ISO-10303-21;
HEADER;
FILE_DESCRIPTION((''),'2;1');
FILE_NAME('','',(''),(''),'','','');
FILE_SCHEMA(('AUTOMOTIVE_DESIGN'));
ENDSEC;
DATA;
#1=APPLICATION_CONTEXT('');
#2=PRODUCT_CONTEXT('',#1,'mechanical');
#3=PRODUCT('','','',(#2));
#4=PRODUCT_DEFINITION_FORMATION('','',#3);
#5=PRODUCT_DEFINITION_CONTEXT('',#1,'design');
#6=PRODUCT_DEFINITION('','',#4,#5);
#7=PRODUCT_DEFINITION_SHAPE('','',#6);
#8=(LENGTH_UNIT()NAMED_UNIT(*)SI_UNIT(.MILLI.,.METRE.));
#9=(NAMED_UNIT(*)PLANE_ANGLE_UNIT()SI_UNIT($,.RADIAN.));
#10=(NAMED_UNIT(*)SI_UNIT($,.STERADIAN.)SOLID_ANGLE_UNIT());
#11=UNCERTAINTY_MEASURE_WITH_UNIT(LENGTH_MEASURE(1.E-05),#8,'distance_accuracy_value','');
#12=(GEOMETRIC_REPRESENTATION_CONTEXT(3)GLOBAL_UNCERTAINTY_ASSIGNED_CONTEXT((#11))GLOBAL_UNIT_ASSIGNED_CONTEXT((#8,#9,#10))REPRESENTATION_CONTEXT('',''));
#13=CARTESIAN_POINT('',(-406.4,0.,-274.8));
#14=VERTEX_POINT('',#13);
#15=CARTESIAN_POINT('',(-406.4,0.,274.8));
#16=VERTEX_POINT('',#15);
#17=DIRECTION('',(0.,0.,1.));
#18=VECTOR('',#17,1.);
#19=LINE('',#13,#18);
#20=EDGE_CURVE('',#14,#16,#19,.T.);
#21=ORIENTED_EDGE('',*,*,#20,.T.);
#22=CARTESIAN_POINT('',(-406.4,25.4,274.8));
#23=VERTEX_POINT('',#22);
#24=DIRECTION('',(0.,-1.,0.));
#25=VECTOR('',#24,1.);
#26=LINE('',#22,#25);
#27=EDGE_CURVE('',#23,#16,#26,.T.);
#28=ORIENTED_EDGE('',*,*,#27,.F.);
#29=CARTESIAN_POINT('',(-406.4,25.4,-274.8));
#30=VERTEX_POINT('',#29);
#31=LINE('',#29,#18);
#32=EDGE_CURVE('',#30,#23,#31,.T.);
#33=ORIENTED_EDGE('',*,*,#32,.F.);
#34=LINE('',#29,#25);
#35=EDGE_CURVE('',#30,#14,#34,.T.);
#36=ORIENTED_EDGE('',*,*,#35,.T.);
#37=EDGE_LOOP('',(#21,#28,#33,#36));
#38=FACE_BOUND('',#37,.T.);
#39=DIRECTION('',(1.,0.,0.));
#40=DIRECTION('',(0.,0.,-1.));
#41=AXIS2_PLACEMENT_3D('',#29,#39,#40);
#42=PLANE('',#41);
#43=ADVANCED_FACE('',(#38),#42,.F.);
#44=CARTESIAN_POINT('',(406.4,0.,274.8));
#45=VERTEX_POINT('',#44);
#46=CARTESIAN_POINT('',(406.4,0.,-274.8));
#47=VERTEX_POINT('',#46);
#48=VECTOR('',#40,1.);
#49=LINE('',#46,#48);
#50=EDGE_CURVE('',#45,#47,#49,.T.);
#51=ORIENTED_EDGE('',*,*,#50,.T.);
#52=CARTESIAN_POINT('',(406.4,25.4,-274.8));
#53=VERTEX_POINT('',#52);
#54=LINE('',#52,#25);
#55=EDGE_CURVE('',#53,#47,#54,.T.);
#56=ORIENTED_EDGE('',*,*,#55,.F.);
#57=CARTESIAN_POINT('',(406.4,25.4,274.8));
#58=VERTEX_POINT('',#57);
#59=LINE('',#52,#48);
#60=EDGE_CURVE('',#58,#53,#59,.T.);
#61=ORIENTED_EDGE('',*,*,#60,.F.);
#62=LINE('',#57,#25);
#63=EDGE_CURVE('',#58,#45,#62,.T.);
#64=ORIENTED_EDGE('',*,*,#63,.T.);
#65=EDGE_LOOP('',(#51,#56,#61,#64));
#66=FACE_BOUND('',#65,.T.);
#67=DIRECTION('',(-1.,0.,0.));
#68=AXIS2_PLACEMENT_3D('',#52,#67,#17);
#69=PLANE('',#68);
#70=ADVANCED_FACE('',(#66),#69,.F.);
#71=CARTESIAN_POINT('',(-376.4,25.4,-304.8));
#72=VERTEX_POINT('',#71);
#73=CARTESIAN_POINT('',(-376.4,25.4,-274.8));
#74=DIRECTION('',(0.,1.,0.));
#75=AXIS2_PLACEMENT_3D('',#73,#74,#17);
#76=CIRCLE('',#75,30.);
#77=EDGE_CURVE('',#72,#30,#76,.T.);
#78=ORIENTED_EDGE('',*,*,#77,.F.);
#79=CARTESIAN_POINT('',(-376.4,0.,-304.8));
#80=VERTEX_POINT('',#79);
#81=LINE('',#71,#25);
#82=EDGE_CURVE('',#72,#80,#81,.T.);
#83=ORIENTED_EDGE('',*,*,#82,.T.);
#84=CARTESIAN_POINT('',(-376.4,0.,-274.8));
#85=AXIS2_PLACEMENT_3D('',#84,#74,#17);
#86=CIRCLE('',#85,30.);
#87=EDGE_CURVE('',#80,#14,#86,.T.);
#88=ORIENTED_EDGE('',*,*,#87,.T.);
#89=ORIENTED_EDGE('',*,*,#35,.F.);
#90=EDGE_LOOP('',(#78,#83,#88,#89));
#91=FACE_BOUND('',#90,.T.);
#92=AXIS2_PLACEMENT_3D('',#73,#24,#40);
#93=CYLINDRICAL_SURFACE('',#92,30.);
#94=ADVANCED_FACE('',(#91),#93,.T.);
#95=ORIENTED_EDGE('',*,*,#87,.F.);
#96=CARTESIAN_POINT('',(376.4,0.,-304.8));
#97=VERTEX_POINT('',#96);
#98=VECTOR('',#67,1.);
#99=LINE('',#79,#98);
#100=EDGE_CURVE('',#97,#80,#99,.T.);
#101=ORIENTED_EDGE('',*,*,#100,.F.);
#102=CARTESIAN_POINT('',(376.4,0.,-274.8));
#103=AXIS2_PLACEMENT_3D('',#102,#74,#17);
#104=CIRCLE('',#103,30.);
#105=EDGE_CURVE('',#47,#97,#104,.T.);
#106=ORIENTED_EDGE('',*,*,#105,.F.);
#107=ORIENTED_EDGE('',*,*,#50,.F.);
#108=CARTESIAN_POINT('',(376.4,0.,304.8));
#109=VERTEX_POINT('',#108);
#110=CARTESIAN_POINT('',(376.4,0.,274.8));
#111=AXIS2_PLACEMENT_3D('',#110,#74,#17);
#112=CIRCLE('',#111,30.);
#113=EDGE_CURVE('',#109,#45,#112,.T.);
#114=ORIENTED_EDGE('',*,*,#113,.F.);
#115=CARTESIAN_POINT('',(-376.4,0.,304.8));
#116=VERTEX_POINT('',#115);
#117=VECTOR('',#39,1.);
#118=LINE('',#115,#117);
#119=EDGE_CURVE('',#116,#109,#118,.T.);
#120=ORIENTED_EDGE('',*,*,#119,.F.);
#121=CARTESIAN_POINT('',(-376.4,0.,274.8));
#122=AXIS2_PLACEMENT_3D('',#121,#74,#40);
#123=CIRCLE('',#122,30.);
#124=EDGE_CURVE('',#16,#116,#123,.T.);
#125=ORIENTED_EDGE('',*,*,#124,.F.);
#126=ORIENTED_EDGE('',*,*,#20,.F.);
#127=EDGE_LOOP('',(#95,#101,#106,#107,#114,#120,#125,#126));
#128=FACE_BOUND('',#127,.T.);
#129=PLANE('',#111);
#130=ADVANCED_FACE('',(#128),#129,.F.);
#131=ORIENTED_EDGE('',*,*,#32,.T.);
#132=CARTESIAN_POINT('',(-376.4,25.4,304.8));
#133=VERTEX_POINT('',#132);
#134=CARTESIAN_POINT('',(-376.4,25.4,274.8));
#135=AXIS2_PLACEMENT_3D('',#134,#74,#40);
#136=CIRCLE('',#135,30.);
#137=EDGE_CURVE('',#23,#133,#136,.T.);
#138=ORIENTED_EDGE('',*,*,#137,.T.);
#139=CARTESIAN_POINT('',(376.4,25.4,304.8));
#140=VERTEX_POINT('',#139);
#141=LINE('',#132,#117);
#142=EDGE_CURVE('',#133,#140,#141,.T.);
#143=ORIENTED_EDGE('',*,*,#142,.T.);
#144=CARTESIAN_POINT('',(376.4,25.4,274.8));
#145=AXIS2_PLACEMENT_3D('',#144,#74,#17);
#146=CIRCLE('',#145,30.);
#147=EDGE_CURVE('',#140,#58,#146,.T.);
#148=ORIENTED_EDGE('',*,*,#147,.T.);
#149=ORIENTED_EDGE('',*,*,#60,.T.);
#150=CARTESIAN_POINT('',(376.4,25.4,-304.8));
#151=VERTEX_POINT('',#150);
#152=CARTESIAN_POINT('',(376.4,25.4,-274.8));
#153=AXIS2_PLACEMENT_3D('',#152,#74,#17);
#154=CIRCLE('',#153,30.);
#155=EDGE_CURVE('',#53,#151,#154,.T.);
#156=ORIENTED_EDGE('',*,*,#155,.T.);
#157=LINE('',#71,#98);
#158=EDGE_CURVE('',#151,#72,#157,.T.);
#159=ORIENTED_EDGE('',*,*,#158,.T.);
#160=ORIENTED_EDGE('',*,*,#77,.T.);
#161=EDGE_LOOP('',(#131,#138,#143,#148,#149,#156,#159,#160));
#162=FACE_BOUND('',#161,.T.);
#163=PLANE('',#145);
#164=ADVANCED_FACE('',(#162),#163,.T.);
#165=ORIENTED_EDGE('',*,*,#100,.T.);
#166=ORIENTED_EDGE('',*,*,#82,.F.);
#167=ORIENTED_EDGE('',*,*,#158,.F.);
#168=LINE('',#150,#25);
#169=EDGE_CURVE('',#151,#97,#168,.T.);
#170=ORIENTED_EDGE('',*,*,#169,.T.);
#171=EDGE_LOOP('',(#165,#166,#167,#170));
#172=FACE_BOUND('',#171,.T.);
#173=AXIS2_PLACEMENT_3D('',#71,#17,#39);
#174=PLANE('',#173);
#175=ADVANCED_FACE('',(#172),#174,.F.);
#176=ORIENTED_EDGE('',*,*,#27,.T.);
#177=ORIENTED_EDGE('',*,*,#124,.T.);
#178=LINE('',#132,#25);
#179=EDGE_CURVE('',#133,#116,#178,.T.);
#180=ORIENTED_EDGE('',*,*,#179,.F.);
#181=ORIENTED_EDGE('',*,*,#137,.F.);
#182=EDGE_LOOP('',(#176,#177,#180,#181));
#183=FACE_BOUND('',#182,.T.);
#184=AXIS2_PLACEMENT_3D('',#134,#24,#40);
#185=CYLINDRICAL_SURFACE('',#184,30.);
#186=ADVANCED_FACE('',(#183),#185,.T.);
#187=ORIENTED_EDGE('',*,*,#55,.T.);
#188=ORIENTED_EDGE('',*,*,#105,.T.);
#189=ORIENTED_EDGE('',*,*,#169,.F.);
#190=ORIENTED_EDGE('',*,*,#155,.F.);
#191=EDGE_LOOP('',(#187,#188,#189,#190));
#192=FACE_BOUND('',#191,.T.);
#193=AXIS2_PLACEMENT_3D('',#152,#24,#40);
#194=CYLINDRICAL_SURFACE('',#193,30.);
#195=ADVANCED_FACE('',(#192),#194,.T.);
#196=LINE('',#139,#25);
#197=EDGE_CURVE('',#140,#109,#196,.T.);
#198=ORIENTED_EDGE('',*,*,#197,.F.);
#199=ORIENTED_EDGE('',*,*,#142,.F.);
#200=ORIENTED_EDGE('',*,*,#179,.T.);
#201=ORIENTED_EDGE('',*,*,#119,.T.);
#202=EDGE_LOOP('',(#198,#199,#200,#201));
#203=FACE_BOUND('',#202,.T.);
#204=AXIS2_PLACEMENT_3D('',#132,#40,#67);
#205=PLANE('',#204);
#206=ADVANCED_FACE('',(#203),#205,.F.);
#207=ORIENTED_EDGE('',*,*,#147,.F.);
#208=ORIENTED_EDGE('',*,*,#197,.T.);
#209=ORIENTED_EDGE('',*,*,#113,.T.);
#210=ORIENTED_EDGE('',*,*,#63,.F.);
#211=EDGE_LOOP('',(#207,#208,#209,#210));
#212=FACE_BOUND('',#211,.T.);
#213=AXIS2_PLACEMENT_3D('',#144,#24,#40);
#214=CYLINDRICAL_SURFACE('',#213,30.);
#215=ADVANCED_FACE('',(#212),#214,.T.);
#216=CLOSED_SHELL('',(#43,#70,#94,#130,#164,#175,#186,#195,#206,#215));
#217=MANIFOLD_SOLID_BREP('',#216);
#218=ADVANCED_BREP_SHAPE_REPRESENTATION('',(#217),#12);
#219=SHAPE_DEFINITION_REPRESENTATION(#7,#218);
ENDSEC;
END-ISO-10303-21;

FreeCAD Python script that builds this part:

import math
import FreeCAD as App
import Part
import Sketcher
from FreeCAD import Vector
Q = App.Units.Quantity

doc = App.newDocument("Part")
body = doc.addObject("PartDesign::Body", "Body")

sketch1 = body.newObject("Sketcher::SketchObject", "Sketch")
sketch1.AttachmentSupport = (doc.getObject("XZ_Plane"), [""])
sketch1.MapMode = "FlatFace"
sketch1.addGeometry(Part.LineSegment(Vector(376, -305, 0), Vector(-376, -305, 0)), False)
sketch1.addGeometry(Part.ArcOfCircle(Part.Circle(Vector(-376, -275, 0), Vector(0, 0, 1), 30), math.radians(180), math.radians(270)), False)
sketch1.addGeometry(Part.LineSegment(Vector(-406, -275, 0), Vector(-406, 275, 0)), False)
sketch1.addGeometry(Part.ArcOfCircle(Part.Circle(Vector(-376, 275, 0), Vector(0, 0, 1), 30), math.radians(90), math.radians(180)), False)
sketch1.addGeometry(Part.LineSegment(Vector(-376, 305, 0), Vector(376, 305, 0)), False)
sketch1.addGeometry(Part.ArcOfCircle(Part.Circle(Vector(376, 275, 0), Vector(0, 0, 1), 30), math.radians(0), math.radians(90)), False)
sketch1.addGeometry(Part.LineSegment(Vector(406, 275, 0), Vector(406, -275, 0)), False)
sketch1.addGeometry(Part.ArcOfCircle(Part.Circle(Vector(376, -275, 0), Vector(0, 0, 1), 30), math.radians(-90), math.radians(0)), False)
sketch1.addConstraint(Sketcher.Constraint("Tangent", 0, 2, 1, 2))
sketch1.addConstraint(Sketcher.Constraint("Tangent", 1, 1, 2, 1))
sketch1.addConstraint(Sketcher.Constraint("Tangent", 2, 2, 3, 2))
sketch1.addConstraint(Sketcher.Constraint("Tangent", 3, 1, 4, 1))
sketch1.addConstraint(Sketcher.Constraint("Tangent", 4, 2, 5, 2))
sketch1.addConstraint(Sketcher.Constraint("Tangent", 5, 1, 6, 1))
sketch1.addConstraint(Sketcher.Constraint("Tangent", 6, 2, 7, 2))
sketch1.addConstraint(Sketcher.Constraint("Tangent", 7, 1, 0, 1))
sketch1.addConstraint(Sketcher.Constraint("Horizontal", 0))
sketch1.addConstraint(Sketcher.Constraint("Vertical", 2))
sketch1.addConstraint(Sketcher.Constraint("Horizontal", 4))
sketch1.addConstraint(Sketcher.Constraint("Vertical", 6))
sketch1.addConstraint(Sketcher.Constraint("Equal", 1, 3))
sketch1.addConstraint(Sketcher.Constraint("Equal", 3, 5))
sketch1.addConstraint(Sketcher.Constraint("Equal", 5, 7))
sketch1.addConstraint(Sketcher.Constraint("Symmetric", 1, 3, 5, 3, -1, 1))
sketch1.addConstraint(Sketcher.Constraint("Radius", 1, Q("30 mm")))
sketch1.addConstraint(Sketcher.Constraint("DistanceX", 0, 2, 0, 1, Q("752.8 mm")))
sketch1.addConstraint(Sketcher.Constraint("DistanceY", 2, 1, 2, 2, Q("549.6 mm")))
pad1 = body.newObject("PartDesign::Pad", "Pad")
pad1.Profile = sketch1
pad1.Length = 25.4
pad1.Reversed = True

doc.recompute()
